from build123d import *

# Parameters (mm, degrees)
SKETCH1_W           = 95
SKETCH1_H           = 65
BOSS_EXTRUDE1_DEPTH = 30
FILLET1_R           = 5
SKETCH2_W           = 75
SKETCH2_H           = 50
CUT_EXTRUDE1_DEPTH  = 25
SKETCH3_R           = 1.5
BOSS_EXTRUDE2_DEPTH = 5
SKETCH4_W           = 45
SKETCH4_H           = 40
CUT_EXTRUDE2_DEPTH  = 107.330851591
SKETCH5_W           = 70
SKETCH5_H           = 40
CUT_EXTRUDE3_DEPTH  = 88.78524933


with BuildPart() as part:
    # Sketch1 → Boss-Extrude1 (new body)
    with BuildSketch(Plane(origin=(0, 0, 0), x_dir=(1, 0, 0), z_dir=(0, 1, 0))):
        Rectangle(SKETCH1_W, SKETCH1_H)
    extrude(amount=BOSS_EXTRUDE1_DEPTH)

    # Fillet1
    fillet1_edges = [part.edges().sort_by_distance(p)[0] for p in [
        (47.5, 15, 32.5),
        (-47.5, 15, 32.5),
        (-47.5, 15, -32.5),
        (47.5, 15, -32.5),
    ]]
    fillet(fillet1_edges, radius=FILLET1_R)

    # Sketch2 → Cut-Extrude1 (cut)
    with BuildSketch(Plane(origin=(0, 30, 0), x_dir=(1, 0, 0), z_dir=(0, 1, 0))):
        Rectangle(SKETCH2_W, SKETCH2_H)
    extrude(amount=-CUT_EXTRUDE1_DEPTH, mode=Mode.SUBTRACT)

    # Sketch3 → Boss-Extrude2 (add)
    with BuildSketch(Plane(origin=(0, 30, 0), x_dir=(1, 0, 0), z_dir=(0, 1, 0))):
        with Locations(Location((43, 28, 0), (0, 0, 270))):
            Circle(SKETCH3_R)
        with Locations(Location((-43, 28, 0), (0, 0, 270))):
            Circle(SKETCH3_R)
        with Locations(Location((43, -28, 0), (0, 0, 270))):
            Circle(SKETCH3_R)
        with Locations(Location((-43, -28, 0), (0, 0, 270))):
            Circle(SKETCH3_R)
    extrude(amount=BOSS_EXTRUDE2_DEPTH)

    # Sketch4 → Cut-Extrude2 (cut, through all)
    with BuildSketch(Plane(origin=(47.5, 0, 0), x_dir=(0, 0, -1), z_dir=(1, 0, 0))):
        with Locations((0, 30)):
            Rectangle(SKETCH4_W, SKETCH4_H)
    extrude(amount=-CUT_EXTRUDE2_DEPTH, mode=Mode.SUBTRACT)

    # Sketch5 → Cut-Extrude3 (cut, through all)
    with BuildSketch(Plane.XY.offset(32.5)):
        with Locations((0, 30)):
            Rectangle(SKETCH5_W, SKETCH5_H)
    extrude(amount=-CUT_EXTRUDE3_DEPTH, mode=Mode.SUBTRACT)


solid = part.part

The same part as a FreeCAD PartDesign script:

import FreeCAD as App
import Part
import Sketcher


def edges_at(feature, points):
    """Names of the edges that pass closest to the given points."""
    edges = feature.Shape.Edges
    near = lambda p: min(range(len(edges)), key=lambda i: edges[i].distToShape(Part.Vertex(*p))[0])
    return sorted({f"Edge{near(p) + 1}" for p in points})

doc = App.newDocument("Part")
body = doc.addObject("PartDesign::Body", "Body")

sketch1 = body.newObject("Sketcher::SketchObject", "Sketch")
sketch1.AttachmentSupport = (doc.getObject("XZ_Plane"), [""])
sketch1.MapMode = "FlatFace"
sketch1.addGeometry([
    Part.LineSegment(App.Vector(-47.5, -32.5, 0), App.Vector(-47.5, 32.5, 0)),
    Part.LineSegment(App.Vector(-47.5, 32.5, 0), App.Vector(47.5, 32.5, 0)),
    Part.LineSegment(App.Vector(47.5, 32.5, 0), App.Vector(47.5, -32.5, 0)),
    Part.LineSegment(App.Vector(47.5, -32.5, 0), App.Vector(-47.5, -32.5, 0)),
], False)
sketch1.addConstraint([
    Sketcher.Constraint("Coincident", 0, 2, 1, 1),
    Sketcher.Constraint("Coincident", 1, 2, 2, 1),
    Sketcher.Constraint("Coincident", 2, 2, 3, 1),
    Sketcher.Constraint("Coincident", 3, 2, 0, 1),
    Sketcher.Constraint("Vertical", 0),
    Sketcher.Constraint("Horizontal", 1),
    Sketcher.Constraint("Vertical", 2),
    Sketcher.Constraint("Horizontal", 3),
    Sketcher.Constraint("Symmetric", 0, 2, 2, 2, -1, 1),
    Sketcher.Constraint("DistanceX", 1, 1, 1, 2, 95.0),
    Sketcher.Constraint("DistanceY", 0, 1, 0, 2, 65.0),
])
pad1 = body.newObject("PartDesign::Pad", "Pad")
pad1.Profile = sketch1
pad1.Length = 30
pad1.Reversed = True
doc.recompute()

fillet = body.newObject("PartDesign::Fillet", "Fillet")
fillet.Base = (pad1, edges_at(pad1, [
    (47.5, 15, 32.5),
    (-47.5, 15, 32.5),
    (-47.5, 15, -32.5),
    (47.5, 15, -32.5),
]))
fillet.Radius = 5

sketch2 = body.newObject("Sketcher::SketchObject", "Sketch001")
sketch2.AttachmentSupport = (doc.getObject("XZ_Plane"), [""])
sketch2.MapMode = "FlatFace"
sketch2.AttachmentOffset = App.Placement(App.Vector(0, 0, -30), App.Rotation())
sketch2.addGeometry([
    Part.LineSegment(App.Vector(-37.5, -25, 0), App.Vector(-37.5, 25, 0)),
    Part.LineSegment(App.Vector(-37.5, 25, 0), App.Vector(37.5, 25, 0)),
    Part.LineSegment(App.Vector(37.5, 25, 0), App.Vector(37.5, -25, 0)),
    Part.LineSegment(App.Vector(37.5, -25, 0), App.Vector(-37.5, -25, 0)),
], False)
sketch2.addConstraint([
    Sketcher.Constraint("Coincident", 0, 2, 1, 1),
    Sketcher.Constraint("Coincident", 1, 2, 2, 1),
    Sketcher.Constraint("Coincident", 2, 2, 3, 1),
    Sketcher.Constraint("Coincident", 3, 2, 0, 1),
    Sketcher.Constraint("Vertical", 0),
    Sketcher.Constraint("Horizontal", 1),
    Sketcher.Constraint("Vertical", 2),
    Sketcher.Constraint("Horizontal", 3),
    Sketcher.Constraint("Symmetric", 0, 2, 2, 2, -1, 1),
    Sketcher.Constraint("DistanceX", 1, 1, 1, 2, 75.0),
    Sketcher.Constraint("DistanceY", 0, 1, 0, 2, 50.0),
])
pocket1 = body.newObject("PartDesign::Pocket", "Pocket")
pocket1.Profile = sketch2
pocket1.Length = 25
pocket1.Reversed = True

sketch3 = body.newObject("Sketcher::SketchObject", "Sketch002")
sketch3.AttachmentSupport = (doc.getObject("XZ_Plane"), [""])
sketch3.MapMode = "FlatFace"
sketch3.AttachmentOffset = App.Placement(App.Vector(0, 0, -30), App.Rotation())
sketch3.addGeometry([
    Part.Circle(App.Vector(43, -28, 0), App.Vector(0, 0, 1), 1.5),
    Part.Circle(App.Vector(-43, -28, 0), App.Vector(0, 0, 1), 1.5),
    Part.Circle(App.Vector(43, 28, 0), App.Vector(0, 0, 1), 1.5),
    Part.Circle(App.Vector(-43, 28, 0), App.Vector(0, 0, 1), 1.5),
], False)
sketch3.addConstraint([
    Sketcher.Constraint("Equal", 0, 1),
    Sketcher.Constraint("Equal", 1, 2),
    Sketcher.Constraint("Equal", 2, 3),
    Sketcher.Constraint("Symmetric", 1, 3, 2, 3, -1, 1),
    Sketcher.Constraint("Symmetric", 0, 3, 3, 3, -1, 1),
    Sketcher.Constraint("Symmetric", 0, 3, 1, 3, -2),
    Sketcher.Constraint("Diameter", 0, 3.0),
    Sketcher.Constraint("DistanceX", -1, 1, 0, 3, 43.0),
    Sketcher.Constraint("DistanceY", 0, 3, -1, 1, 28.0),
])
pad2 = body.newObject("PartDesign::Pad", "Pad001")
pad2.Profile = sketch3
pad2.Length = 5
pad2.Reversed = True

sketch4 = body.newObject("Sketcher::SketchObject", "Sketch003")
sketch4.AttachmentSupport = (doc.getObject("YZ_Plane"), [""])
sketch4.MapMode = "FlatFace"
sketch4.AttachmentOffset = App.Placement(App.Vector(0, 0, 47.5), App.Rotation())
sketch4.addGeometry([
    Part.LineSegment(App.Vector(50, 22.5, 0), App.Vector(10, 22.5, 0)),
    Part.LineSegment(App.Vector(10, 22.5, 0), App.Vector(10, -22.5, 0)),
    Part.LineSegment(App.Vector(10, -22.5, 0), App.Vector(50, -22.5, 0)),
    Part.LineSegment(App.Vector(50, -22.5, 0), App.Vector(50, 22.5, 0)),
], False)
sketch4.addConstraint([
    Sketcher.Constraint("Coincident", 0, 2, 1, 1),
    Sketcher.Constraint("Coincident", 1, 2, 2, 1),
    Sketcher.Constraint("Coincident", 2, 2, 3, 1),
    Sketcher.Constraint("Coincident", 3, 2, 0, 1),
    Sketcher.Constraint("Horizontal", 0),
    Sketcher.Constraint("Vertical", 1),
    Sketcher.Constraint("Horizontal", 2),
    Sketcher.Constraint("Vertical", 3),
    Sketcher.Constraint("DistanceX", 0, 2, 0, 1, 40.0),
    Sketcher.Constraint("DistanceY", 1, 2, 1, 1, 45.0),
    Sketcher.Constraint("DistanceX", -1, 1, 0, 2, 10.0),
    Sketcher.Constraint("DistanceY", -1, 1, 0, 2, 22.5),
])
pocket2 = body.newObject("PartDesign::Pocket", "Pocket001")
pocket2.Profile = sketch4
pocket2.Type = "ThroughAll"

sketch5 = body.newObject("Sketcher::SketchObject", "Sketch004")
sketch5.AttachmentSupport = (doc.getObject("XY_Plane"), [""])
sketch5.MapMode = "FlatFace"
sketch5.AttachmentOffset = App.Placement(App.Vector(0, 0, 32.5), App.Rotation())
sketch5.addGeometry([
    Part.LineSegment(App.Vector(-35, 50, 0), App.Vector(-35, 10, 0)),
    Part.LineSegment(App.Vector(-35, 10, 0), App.Vector(35, 10, 0)),
    Part.LineSegment(App.Vector(35, 10, 0), App.Vector(35, 50, 0)),
    Part.LineSegment(App.Vector(35, 50, 0), App.Vector(-35, 50, 0)),
], False)
sketch5.addConstraint([
    Sketcher.Constraint("Coincident", 0, 2, 1, 1),
    Sketcher.Constraint("Coincident", 1, 2, 2, 1),
    Sketcher.Constraint("Coincident", 2, 2, 3, 1),
    Sketcher.Constraint("Coincident", 3, 2, 0, 1),
    Sketcher.Constraint("Vertical", 0),
    Sketcher.Constraint("Horizontal", 1),
    Sketcher.Constraint("Vertical", 2),
    Sketcher.Constraint("Horizontal", 3),
    Sketcher.Constraint("DistanceX", 1, 1, 1, 2, 70.0),
    Sketcher.Constraint("DistanceY", 0, 2, 0, 1, 40.0),
    Sketcher.Constraint("DistanceX", 0, 2, -1, 1, 35.0),
    Sketcher.Constraint("DistanceY", -1, 1, 0, 2, 10.0),
])
pocket3 = body.newObject("PartDesign::Pocket", "Pocket002")
pocket3.Profile = sketch5
pocket3.Type = "ThroughAll"

doc.recompute()
